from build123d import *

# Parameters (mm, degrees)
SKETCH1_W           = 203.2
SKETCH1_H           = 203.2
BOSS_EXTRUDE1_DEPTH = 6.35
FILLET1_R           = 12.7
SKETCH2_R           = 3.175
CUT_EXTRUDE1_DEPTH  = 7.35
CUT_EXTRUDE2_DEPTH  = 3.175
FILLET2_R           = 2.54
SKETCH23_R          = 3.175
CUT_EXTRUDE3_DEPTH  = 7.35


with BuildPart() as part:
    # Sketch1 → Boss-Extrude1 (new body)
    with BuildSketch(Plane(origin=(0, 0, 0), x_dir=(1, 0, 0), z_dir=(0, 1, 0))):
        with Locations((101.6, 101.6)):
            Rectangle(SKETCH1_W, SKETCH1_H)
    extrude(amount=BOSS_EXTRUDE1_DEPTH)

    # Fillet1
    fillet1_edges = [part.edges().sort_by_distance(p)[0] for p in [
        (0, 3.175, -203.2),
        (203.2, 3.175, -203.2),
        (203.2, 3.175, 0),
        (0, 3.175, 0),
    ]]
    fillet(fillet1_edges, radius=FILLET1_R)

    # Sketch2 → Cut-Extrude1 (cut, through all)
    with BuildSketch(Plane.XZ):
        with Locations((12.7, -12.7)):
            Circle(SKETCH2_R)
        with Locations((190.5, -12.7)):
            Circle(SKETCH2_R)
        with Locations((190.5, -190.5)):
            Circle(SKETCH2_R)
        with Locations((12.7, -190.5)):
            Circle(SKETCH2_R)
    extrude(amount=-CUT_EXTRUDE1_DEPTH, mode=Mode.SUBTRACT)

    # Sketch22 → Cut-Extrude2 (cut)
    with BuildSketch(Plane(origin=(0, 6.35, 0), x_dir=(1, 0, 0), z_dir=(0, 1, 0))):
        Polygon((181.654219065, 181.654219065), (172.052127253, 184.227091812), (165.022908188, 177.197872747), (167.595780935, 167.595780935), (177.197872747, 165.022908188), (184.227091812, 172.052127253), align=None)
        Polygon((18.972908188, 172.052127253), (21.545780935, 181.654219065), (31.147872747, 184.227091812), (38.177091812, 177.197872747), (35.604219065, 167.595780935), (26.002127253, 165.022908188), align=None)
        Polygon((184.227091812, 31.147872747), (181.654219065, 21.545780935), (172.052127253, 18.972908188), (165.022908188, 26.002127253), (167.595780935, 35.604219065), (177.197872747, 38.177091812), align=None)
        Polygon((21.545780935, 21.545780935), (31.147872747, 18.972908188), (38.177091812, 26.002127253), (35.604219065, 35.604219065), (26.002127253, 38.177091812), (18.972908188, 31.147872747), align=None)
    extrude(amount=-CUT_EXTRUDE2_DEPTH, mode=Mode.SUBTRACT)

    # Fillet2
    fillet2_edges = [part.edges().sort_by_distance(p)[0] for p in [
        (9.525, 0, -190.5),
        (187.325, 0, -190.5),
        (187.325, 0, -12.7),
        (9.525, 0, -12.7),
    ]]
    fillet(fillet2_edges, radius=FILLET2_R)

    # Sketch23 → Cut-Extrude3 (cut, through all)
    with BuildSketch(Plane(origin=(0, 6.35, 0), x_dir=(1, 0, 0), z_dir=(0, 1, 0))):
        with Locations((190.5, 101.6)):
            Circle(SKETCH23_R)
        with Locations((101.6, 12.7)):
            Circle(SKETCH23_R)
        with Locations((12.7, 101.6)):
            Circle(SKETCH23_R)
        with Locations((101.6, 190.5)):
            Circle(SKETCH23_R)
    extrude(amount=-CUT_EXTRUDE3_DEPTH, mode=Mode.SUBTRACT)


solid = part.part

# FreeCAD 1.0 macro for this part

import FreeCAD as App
import Part
import Sketcher
Q = App.Units.Quantity


def edges_at(feature, points):
    """Names of the edges that pass closest to the given points."""
    edges = feature.Shape.Edges
    near = lambda p: min(range(len(edges)), key=lambda i: edges[i].distToShape(Part.Vertex(*p))[0])
    return sorted({f"Edge{near(p) + 1}" for p in points})

doc = App.newDocument("Part")
body = doc.addObject("PartDesign::Body", "Body")

# Sketch on XZ plane
sketch1 = body.newObject("Sketcher::SketchObject", "Sketch")
sketch1.AttachmentSupport = (doc.getObject("XZ_Plane"), [""])
sketch1.MapMode = "FlatFace"
sketch1.addGeometry([
    Part.LineSegment(App.Vector(0, -203, 0), App.Vector(0, 0, 0)),
    Part.LineSegment(App.Vector(0, 0, 0), App.Vector(203, 0, 0)),
    Part.LineSegment(App.Vector(203, 0, 0), App.Vector(203, -203, 0)),
    Part.LineSegment(App.Vector(203, -203, 0), App.Vector(0, -203, 0)),
], False)
sketch1.addConstraint([
    Sketcher.Constraint("Coincident", 0, 2, 1, 1),
    Sketcher.Constraint("Coincident", 1, 2, 2, 1),
    Sketcher.Constraint("Coincident", 2, 2, 3, 1),
    Sketcher.Constraint("Coincident", 3, 2, 0, 1),
    Sketcher.Constraint("Vertical", 0),
    Sketcher.Constraint("Horizontal", 1),
    Sketcher.Constraint("Vertical", 2),
    Sketcher.Constraint("Horizontal", 3),
    Sketcher.Constraint("Coincident", 0, 2, -1, 1),
    Sketcher.Constraint("Equal", 3, 0),
    Sketcher.Constraint("DistanceX", 1, 1, 1, 2, Q("8 in")),
])
pad1 = body.newObject("PartDesign::Pad", "Pad")
pad1.Profile = sketch1
pad1.Length = Q("0.25 in")
pad1.Reversed = True
doc.recompute()

fillet = body.newObject("PartDesign::Fillet", "Fillet")
fillet.Base = (pad1, edges_at(pad1, [
    (0, 3.175, -203.2),
    (203.2, 3.175, -203.2),
    (203.2, 3.175, 0),
    (0, 3.175, 0),
]))
fillet.Radius = Q("0.5 in")

# Sketch on XZ plane
sketch2 = body.newObject("Sketcher::SketchObject", "Sketch001")
sketch2.AttachmentSupport = (doc.getObject("XZ_Plane"), [""])
sketch2.MapMode = "FlatFace"
sketch2.addGeometry([
    Part.Circle(App.Vector(12.7, -12.7, 0), App.Vector(0, 0, 1), 3.2),
    Part.Circle(App.Vector(190.5, -12.7, 0), App.Vector(0, 0, 1), 3.2),
    Part.Circle(App.Vector(190.5, -190.5, 0), App.Vector(0, 0, 1), 3.2),
    Part.Circle(App.Vector(12.7, -190.5, 0), App.Vector(0, 0, 1), 3.2),
], False)
sketch2.addConstraint([
    Sketcher.Constraint("Equal", 0, 1),
    Sketcher.Constraint("Equal", 1, 2),
    Sketcher.Constraint("Equal", 2, 3),
    Sketcher.Constraint("Horizontal", 0, 3, 1, 3),
    Sketcher.Constraint("Horizontal", 2, 3, 3, 3),
    Sketcher.Constraint("Vertical", 1, 3, 2, 3),
    Sketcher.Constraint("Vertical", 0, 3, 3, 3),
    Sketcher.Constraint("Diameter", 0, Q("0.25 in")),
    Sketcher.Constraint("DistanceX", 0, 3, 1, 3, Q("7 in")),
    Sketcher.Constraint("DistanceY", 2, 3, 1, 3, Q("7 in")),
    Sketcher.Constraint("DistanceX", -1, 1, 0, 3, Q("0.5 in")),
    Sketcher.Constraint("DistanceY", 0, 3, -1, 1, Q("0.5 in")),
])
pocket1 = body.newObject("PartDesign::Pocket", "Pocket")
pocket1.Profile = sketch2
pocket1.Type = "ThroughAll"

# Sketch on XZ plane
sketch3 = body.newObject("Sketcher::SketchObject", "Sketch002")
sketch3.AttachmentSupport = (doc.getObject("XZ_Plane"), [""])
sketch3.MapMode = "FlatFace"
sketch3.AttachmentOffset = App.Placement(App.Vector(0, 0, -0.25 * 25.4), App.Rotation())
sketch3.addGeometry([
    Part.LineSegment(App.Vector(182, -182, 0), App.Vector(172, -184, 0)),  # 0
    Part.LineSegment(App.Vector(172, -184, 0), App.Vector(165, -177, 0)),  # 1
    Part.LineSegment(App.Vector(165, -177, 0), App.Vector(168, -168, 0)),  # 2
    Part.LineSegment(App.Vector(168, -168, 0), App.Vector(177, -165, 0)),  # 3
    Part.LineSegment(App.Vector(177, -165, 0), App.Vector(184, -172, 0)),  # 4
    Part.LineSegment(App.Vector(184, -172, 0), App.Vector(182, -182, 0)),  # 5
    Part.LineSegment(App.Vector(22, -182, 0), App.Vector(19, -172, 0)),  # 6
    Part.LineSegment(App.Vector(19, -172, 0), App.Vector(26, -165, 0)),  # 7
    Part.LineSegment(App.Vector(26, -165, 0), App.Vector(36, -168, 0)),  # 8
    Part.LineSegment(App.Vector(36, -168, 0), App.Vector(38, -177, 0)),  # 9
    Part.LineSegment(App.Vector(38, -177, 0), App.Vector(31, -184, 0)),  # 10
    Part.LineSegment(App.Vector(31, -184, 0), App.Vector(22, -182, 0)),  # 11
    Part.LineSegment(App.Vector(182, -22, 0), App.Vector(184, -31, 0)),  # 12
    Part.LineSegment(App.Vector(184, -31, 0), App.Vector(177, -38, 0)),  # 13
    Part.LineSegment(App.Vector(177, -38, 0), App.Vector(168, -36, 0)),  # 14
    Part.LineSegment(App.Vector(168, -36, 0), App.Vector(165, -26, 0)),  # 15
    Part.LineSegment(App.Vector(165, -26, 0), App.Vector(172, -19, 0)),  # 16
    Part.LineSegment(App.Vector(172, -19, 0), App.Vector(182, -22, 0)),  # 17
    Part.LineSegment(App.Vector(22, -22, 0), App.Vector(31, -19, 0)),  # 18
    Part.LineSegment(App.Vector(31, -19, 0), App.Vector(38, -26, 0)),  # 19
    Part.LineSegment(App.Vector(38, -26, 0), App.Vector(36, -36, 0)),  # 20
    Part.LineSegment(App.Vector(36, -36, 0), App.Vector(26, -38, 0)),  # 21
    Part.LineSegment(App.Vector(26, -38, 0), App.Vector(19, -31, 0)),  # 22
    Part.LineSegment(App.Vector(19, -31, 0), App.Vector(22, -22, 0)),  # 23
], False)
sketch3.addConstraint([
    Sketcher.Constraint("Coincident", 0, 2, 1, 1),
    Sketcher.Constraint("Coincident", 1, 2, 2, 1),
    Sketcher.Constraint("Coincident", 2, 2, 3, 1),
    Sketcher.Constraint("Coincident", 3, 2, 4, 1),
    Sketcher.Constraint("Coincident", 4, 2, 5, 1),
    Sketcher.Constraint("Coincident", 5, 2, 0, 1),
    Sketcher.Constraint("Coincident", 6, 2, 7, 1),
    Sketcher.Constraint("Coincident", 7, 2, 8, 1),
    Sketcher.Constraint("Coincident", 8, 2, 9, 1),
    Sketcher.Constraint("Coincident", 9, 2, 10, 1),
    Sketcher.Constraint("Coincident", 10, 2, 11, 1),
    Sketcher.Constraint("Coincident", 11, 2, 6, 1),
    Sketcher.Constraint("Coincident", 12, 2, 13, 1),
    Sketcher.Constraint("Coincident", 13, 2, 14, 1),
    Sketcher.Constraint("Coincident", 14, 2, 15, 1),
    Sketcher.Constraint("Coincident", 15, 2, 16, 1),
    Sketcher.Constraint("Coincident", 16, 2, 17, 1),
    Sketcher.Constraint("Coincident", 17, 2, 12, 1),
    Sketcher.Constraint("Coincident", 18, 2, 19, 1),
    Sketcher.Constraint("Coincident", 19, 2, 20, 1),
    Sketcher.Constraint("Coincident", 20, 2, 21, 1),
    Sketcher.Constraint("Coincident", 21, 2, 22, 1),
    Sketcher.Constraint("Coincident", 22, 2, 23, 1),
    Sketcher.Constraint("Coincident", 23, 2, 18, 1),
    Sketcher.Constraint("Parallel", 0, 3),
    Sketcher.Constraint("Parallel", 1, 4),
    Sketcher.Constraint("Parallel", 2, 5),
    Sketcher.Constraint("Perpendicular", 3, 6),
    Sketcher.Constraint("Perpendicular", 4, 7),
    Sketcher.Constraint("Perpendicular", 5, 8),
    Sketcher.Constraint("Parallel", 6, 9),
    Sketcher.Constraint("Parallel", 7, 10),
    Sketcher.Constraint("Parallel", 8, 11),
    Sketcher.Constraint("Parallel", 9, 12),
    Sketcher.Constraint("Parallel", 10, 13),
    Sketcher.Constraint("Parallel", 11, 14),
    Sketcher.Constraint("Parallel", 12, 15),
    Sketcher.Constraint("Parallel", 13, 16),
    Sketcher.Constraint("Parallel", 14, 17),
    Sketcher.Constraint("Perpendicular", 15, 18),
    Sketcher.Constraint("Perpendicular", 16, 19),
    Sketcher.Constraint("Perpendicular", 17, 20),
    Sketcher.Constraint("Parallel", 18, 21),
    Sketcher.Constraint("Parallel", 19, 22),
    Sketcher.Constraint("Parallel", 20, 23),
    Sketcher.Constraint("Horizontal", 4, 2, 6, 2),
    Sketcher.Constraint("Horizontal", 3, 2, 7, 2),
    Sketcher.Constraint("Horizontal", 2, 2, 8, 2),
    Sketcher.Constraint("Horizontal", 1, 2, 9, 2),
    Sketcher.Constraint("Horizontal", 0, 2, 10, 2),
    Sketcher.Constraint("Horizontal", 16, 2, 18, 2),
    Sketcher.Constraint("Horizontal", 15, 2, 19, 2),
    Sketcher.Constraint("Horizontal", 14, 2, 20, 2),
    Sketcher.Constraint("Horizontal", 13, 2, 21, 2),
    Sketcher.Constraint("Horizontal", 12, 2, 22, 2),
    Sketcher.Constraint("Vertical", 4, 2, 12, 2),
    Sketcher.Constraint("Vertical", 3, 2, 13, 2),
    Sketcher.Constraint("Vertical", 2, 2, 14, 2),
    Sketcher.Constraint("Vertical", 1, 2, 15, 2),
    Sketcher.Constraint("Vertical", 0, 2, 16, 2),
    Sketcher.Constraint("Vertical", 10, 2, 18, 2),
    Sketcher.Constraint("Vertical", 9, 2, 19, 2),
    Sketcher.Constraint("Vertical", 8, 2, 20, 2),
    Sketcher.Constraint("Equal", 0, 1),
    Sketcher.Constraint("Equal", 1, 2),
    Sketcher.Constraint("Equal", 2, 3),
    Sketcher.Constraint("Angle", 0, Q("-165 deg")),
    Sketcher.Constraint("DistanceX", 6, 2, 1, 2, Q("5.75 in")),
    Sketcher.Constraint("DistanceY", 1, 2, 12, 2, Q("5.75 in")),
    Sketcher.Constraint("DistanceY", 0, 2, -1, 1, Q("184.227092 mm")),
    Sketcher.Constraint("DistanceX", -1, 1, 1, 2, Q("165.022908 mm")),
    Sketcher.Constraint("DistanceX", -1, 1, 2, 2, Q("167.595781 mm")),
])
pocket2 = body.newObject("PartDesign::Pocket", "Pocket001")
pocket2.Profile = sketch3
pocket2.Length = Q("0.125 in")
pocket2.Reversed = True
doc.recompute()

fillet2 = body.newObject("PartDesign::Fillet", "Fillet001")
fillet2.Base = (pocket2, edges_at(pocket2, [
    (9.525, 0, -190.5),
    (187.325, 0, -190.5),
    (187.325, 0, -12.7),
    (9.525, 0, -12.7),
]))
fillet2.Radius = Q("0.1 in")

# Sketch on XZ plane
sketch4 = body.newObject("Sketcher::SketchObject", "Sketch003")
sketch4.AttachmentSupport = (doc.getObject("XZ_Plane"), [""])
sketch4.MapMode = "FlatFace"
sketch4.AttachmentOffset = App.Placement(App.Vector(0, 0, -0.25 * 25.4), App.Rotation())
sketch4.addGeometry([
    Part.Circle(App.Vector(190.5, -101.6, 0), App.Vector(0, 0, 1), 3.2),
    Part.Circle(App.Vector(101.6, -12.7, 0), App.Vector(0, 0, 1), 3.2),
    Part.Circle(App.Vector(12.7, -101.6, 0), App.Vector(0, 0, 1), 3.2),
    Part.Circle(App.Vector(101.6, -190.5, 0), App.Vector(0, 0, 1), 3.2),
], False)
sketch4.addConstraint([
    Sketcher.Constraint("Equal", 0, 1),
    Sketcher.Constraint("Equal", 1, 2),
    Sketcher.Constraint("Equal", 2, 3),
    Sketcher.Constraint("Horizontal", 0, 3, 2, 3),
    Sketcher.Constraint("Vertical", 1, 3, 3, 3),
    Sketcher.Constraint("Diameter", 0, Q("0.25 in")),
    Sketcher.Constraint("DistanceY", 0, 3, -1, 1, Q("4 in")),
    Sketcher.Constraint("DistanceX", -1, 1, 1, 3, Q("4 in")),
    Sketcher.Constraint("DistanceX", 2, 3, 0, 3, Q("7 in")),
    Sketcher.Constraint("DistanceY", 3, 3, 1, 3, Q("7 in")),
    Sketcher.Constraint("DistanceX", -1, 1, 0, 3, Q("7.5 in")),
    Sketcher.Constraint("DistanceY", 1, 3, -1, 1, Q("0.5 in")),
])
pocket3 = body.newObject("PartDesign::Pocket", "Pocket002")
pocket3.Profile = sketch4
pocket3.Type = "ThroughAll"
pocket3.Reversed = True

doc.recompute()
